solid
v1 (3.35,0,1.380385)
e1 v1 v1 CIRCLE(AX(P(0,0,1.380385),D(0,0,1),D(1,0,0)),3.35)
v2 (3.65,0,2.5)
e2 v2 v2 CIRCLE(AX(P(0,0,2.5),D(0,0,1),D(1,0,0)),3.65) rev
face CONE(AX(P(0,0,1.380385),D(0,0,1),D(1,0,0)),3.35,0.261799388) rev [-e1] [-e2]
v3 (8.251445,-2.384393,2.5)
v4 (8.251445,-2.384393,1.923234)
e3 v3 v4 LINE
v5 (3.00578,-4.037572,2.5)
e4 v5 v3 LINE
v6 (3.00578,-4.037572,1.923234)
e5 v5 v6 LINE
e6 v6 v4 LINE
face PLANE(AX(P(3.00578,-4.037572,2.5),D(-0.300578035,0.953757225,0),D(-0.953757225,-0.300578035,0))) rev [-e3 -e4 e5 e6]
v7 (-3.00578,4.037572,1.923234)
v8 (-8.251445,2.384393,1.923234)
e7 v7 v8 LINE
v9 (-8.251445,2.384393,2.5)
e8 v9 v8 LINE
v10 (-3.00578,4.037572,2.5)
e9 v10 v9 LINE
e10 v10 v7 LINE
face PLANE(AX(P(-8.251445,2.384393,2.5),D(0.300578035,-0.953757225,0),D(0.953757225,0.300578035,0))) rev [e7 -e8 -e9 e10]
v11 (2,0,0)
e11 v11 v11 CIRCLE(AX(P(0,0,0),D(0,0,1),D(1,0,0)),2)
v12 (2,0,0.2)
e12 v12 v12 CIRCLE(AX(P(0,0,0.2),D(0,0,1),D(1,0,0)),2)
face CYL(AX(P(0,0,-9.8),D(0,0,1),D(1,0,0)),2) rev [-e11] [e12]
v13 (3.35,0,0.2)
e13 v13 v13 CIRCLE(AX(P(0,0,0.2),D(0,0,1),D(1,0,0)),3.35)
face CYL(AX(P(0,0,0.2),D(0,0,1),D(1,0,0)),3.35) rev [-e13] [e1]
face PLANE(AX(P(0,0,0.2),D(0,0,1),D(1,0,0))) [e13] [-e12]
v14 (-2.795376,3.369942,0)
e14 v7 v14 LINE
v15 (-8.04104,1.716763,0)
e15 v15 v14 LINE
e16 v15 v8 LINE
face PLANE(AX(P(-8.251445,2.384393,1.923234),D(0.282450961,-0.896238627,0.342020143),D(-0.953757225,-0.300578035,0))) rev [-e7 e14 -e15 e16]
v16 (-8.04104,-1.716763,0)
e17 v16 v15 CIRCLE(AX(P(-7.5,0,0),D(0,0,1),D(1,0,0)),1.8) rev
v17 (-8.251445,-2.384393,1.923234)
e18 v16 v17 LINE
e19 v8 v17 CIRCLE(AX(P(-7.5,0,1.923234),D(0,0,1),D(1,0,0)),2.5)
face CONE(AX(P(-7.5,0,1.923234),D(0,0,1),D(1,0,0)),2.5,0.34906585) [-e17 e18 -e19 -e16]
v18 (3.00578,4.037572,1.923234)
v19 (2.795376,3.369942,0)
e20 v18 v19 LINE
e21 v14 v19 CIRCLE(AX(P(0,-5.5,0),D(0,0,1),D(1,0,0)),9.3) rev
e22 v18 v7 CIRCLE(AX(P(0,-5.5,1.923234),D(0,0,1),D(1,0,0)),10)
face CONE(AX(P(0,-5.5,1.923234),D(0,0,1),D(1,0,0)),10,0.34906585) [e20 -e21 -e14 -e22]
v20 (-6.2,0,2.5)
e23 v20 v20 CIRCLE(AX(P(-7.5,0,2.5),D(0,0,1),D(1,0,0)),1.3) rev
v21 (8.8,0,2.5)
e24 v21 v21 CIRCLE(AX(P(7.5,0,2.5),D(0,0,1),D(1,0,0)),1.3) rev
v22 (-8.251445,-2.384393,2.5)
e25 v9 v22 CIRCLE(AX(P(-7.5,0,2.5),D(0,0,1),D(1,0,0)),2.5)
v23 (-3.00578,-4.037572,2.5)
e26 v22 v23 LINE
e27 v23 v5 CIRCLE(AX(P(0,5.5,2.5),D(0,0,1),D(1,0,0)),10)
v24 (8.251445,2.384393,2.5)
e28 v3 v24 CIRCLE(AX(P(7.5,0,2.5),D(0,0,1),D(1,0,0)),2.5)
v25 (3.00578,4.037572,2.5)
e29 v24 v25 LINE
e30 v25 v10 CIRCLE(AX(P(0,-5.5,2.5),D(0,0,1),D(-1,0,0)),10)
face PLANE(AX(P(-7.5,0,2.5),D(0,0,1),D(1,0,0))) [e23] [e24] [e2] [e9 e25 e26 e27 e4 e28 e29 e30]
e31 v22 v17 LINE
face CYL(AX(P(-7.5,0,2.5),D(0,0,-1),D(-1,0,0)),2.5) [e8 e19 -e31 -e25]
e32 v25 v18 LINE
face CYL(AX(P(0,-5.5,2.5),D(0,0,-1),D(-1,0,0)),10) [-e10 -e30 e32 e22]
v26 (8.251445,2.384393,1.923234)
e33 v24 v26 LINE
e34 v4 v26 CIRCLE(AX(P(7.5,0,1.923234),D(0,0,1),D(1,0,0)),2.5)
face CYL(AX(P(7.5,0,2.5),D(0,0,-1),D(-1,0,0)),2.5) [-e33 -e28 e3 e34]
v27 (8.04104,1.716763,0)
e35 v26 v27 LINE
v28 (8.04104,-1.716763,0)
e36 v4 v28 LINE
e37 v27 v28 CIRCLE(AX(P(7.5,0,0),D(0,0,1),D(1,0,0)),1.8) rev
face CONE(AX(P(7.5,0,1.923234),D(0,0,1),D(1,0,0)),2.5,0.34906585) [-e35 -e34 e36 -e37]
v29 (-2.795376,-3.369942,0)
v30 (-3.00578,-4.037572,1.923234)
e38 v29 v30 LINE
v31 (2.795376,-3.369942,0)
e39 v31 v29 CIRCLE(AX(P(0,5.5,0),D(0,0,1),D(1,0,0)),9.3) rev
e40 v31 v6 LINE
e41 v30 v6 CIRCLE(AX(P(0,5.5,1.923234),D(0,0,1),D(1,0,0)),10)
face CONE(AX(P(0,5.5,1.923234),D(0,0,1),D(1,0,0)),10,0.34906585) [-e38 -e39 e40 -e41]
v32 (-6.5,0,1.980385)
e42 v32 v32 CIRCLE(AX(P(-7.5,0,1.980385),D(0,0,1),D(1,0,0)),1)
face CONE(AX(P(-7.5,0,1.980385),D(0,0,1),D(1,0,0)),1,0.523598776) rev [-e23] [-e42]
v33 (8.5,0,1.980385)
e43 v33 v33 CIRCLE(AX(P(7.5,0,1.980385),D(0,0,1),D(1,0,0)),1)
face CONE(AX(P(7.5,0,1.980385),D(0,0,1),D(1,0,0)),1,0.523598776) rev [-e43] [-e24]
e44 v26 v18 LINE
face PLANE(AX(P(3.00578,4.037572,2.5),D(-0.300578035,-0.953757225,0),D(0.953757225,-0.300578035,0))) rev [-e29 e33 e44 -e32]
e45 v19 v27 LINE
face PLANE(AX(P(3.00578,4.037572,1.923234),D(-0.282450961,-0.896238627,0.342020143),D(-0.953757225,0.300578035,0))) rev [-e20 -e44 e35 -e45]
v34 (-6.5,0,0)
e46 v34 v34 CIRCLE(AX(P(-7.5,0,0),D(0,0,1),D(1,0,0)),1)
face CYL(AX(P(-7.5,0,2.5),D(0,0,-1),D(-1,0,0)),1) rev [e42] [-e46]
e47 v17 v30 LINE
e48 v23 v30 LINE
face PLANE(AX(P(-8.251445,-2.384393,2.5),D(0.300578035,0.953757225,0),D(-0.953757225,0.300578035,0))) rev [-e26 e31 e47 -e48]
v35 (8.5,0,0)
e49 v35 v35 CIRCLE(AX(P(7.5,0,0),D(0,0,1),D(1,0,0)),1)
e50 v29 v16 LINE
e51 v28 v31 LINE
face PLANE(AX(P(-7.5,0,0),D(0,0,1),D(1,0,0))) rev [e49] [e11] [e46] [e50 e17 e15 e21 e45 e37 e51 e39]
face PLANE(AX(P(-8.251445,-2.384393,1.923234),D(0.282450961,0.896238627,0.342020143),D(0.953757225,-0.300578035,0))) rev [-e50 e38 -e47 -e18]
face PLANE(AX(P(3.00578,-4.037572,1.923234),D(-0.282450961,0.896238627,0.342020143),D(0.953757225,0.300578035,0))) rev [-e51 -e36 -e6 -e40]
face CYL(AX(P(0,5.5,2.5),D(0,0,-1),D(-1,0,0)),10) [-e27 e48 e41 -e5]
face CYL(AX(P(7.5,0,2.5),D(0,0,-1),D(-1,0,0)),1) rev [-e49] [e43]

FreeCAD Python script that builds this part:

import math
import FreeCAD as App
import Part
import Sketcher
from FreeCAD import Vector


def edges_at(feature, points):
    """Names of the edges that pass closest to the given points."""
    edges = feature.Shape.Edges
    near = lambda p: min(range(len(edges)), key=lambda i: edges[i].distToShape(Part.Vertex(*p))[0])
    return sorted({f"Edge{near(p) + 1}" for p in points})

doc = App.newDocument("Part")
body = doc.addObject("PartDesign::Body", "Body")

# Sketch on XY plane
sketch1 = body.newObject("Sketcher::SketchObject", "Sketch")
sketch1.AttachmentSupport = (doc.getObject("XY_Plane"), [""])
sketch1.MapMode = "FlatFace"
sketch1.addGeometry([
    Part.LineSegment(Vector(-3, 4, 0), Vector(-8.3, 2.4, 0)),  # 0
    Part.ArcOfCircle(Part.Circle(Vector(-7.5, 0, 0), Vector(0, 0, 1), 2.5), math.radians(107), math.radians(253)),  # 1
    Part.LineSegment(Vector(-8.3, -2.4, 0), Vector(-3, -4, 0)),  # 2
    Part.ArcOfCircle(Part.Circle(Vector(0, 5.5, 0), Vector(0, 0, 1), 10), math.radians(-107), math.radians(-73)),  # 3
    Part.LineSegment(Vector(3, -4, 0), Vector(8.3, -2.4, 0)),  # 4
    Part.ArcOfCircle(Part.Circle(Vector(7.5, 0, 0), Vector(0, 0, 1), 2.5), math.radians(-73), math.radians(73)),  # 5
    Part.LineSegment(Vector(8.3, 2.4, 0), Vector(3, 4, 0)),  # 6
    Part.ArcOfCircle(Part.Circle(Vector(0, -5.5, 0), Vector(0, 0, 1), 10), math.radians(73), math.radians(107)),  # 7
    Part.Circle(Vector(7.5, 0, 0), Vector(0, 0, 1), 1),  # 8
    Part.Circle(Vector(-7.5, 0, 0), Vector(0, 0, 1), 1),  # 9
], False)
sketch1.addConstraint([
    Sketcher.Constraint("Tangent", 0, 2, 1, 1),
    Sketcher.Constraint("Tangent", 1, 2, 2, 1),
    Sketcher.Constraint("Tangent", 2, 2, 3, 1),
    Sketcher.Constraint("Tangent", 3, 2, 4, 1),
    Sketcher.Constraint("Tangent", 4, 2, 5, 1),
    Sketcher.Constraint("Tangent", 5, 2, 6, 1),
    Sketcher.Constraint("Tangent", 6, 2, 7, 1),
    Sketcher.Constraint("Tangent", 7, 2, 0, 1),
    Sketcher.Constraint("Coincident", 8, 3, 5, 3),
    Sketcher.Constraint("Coincident", 9, 3, 1, 3),
    Sketcher.Constraint("Equal", 1, 5),
    Sketcher.Constraint("Equal", 3, 7),
    Sketcher.Constraint("Equal", 8, 9),
    Sketcher.Constraint("Symmetric", 1, 3, 5, 3, -1, 1),
    Sketcher.Constraint("Symmetric", 3, 3, 7, 3, -1, 1),
    Sketcher.Constraint("Symmetric", 2, 2, 3, 2, -2),
    Sketcher.Constraint("Diameter", 8, 2.0),
    Sketcher.Constraint("Radius", 3, 10.0),
    Sketcher.Constraint("Radius", 1, 2.5),
    Sketcher.Constraint("DistanceX", 1, 3, 5, 3, 15.0),
    Sketcher.Constraint("DistanceY", 7, 3, 3, 3, 11.0),
])
pad1 = body.newObject("PartDesign::Pad", "Pad")
pad1.Profile = sketch1
pad1.Length = 2.5

# Sketch on XY plane
sketch2 = body.newObject("Sketcher::SketchObject", "Sketch001")
sketch2.AttachmentSupport = (doc.getObject("XY_Plane"), [""])
sketch2.MapMode = "FlatFace"
sketch2.AttachmentOffset = App.Placement(Vector(0, 0, 2.5), App.Rotation())
sketch2.addGeometry(Part.Circle(Vector(0, 0, 0), Vector(0, 0, 1), 3.4), False)
sketch2.addConstraint([
    Sketcher.Constraint("Coincident", 0, 3, -1, 1),
    Sketcher.Constraint("Diameter", 0, 6.7),
])
pocket1 = body.newObject("PartDesign::Pocket", "Pocket")
pocket1.Profile = sketch2
pocket1.Length = 2.3
doc.recompute()

chamfer = body.newObject("PartDesign::Chamfer", "Chamfer")
chamfer.Base = (pocket1, edges_at(pocket1, [
    (-5.629, -3.211, 0),
    (-10, 0, 0),
    (-5.629, 3.211, 0),
    (0, 4.5, 0),
    (5.629, 3.211, 0),
    (10, 0, 0),
    (5.629, -3.211, 0),
    (0, -4.5, 0),
]))
chamfer.ChamferType = "Two distances"
chamfer.Size = 0.7
chamfer.Size2 = 1.923234
doc.recompute()

chamfer2 = body.newObject("PartDesign::Chamfer", "Chamfer001")
chamfer2.Base = (chamfer, edges_at(chamfer, [(-3.35, 0, 2.5)]))
chamfer2.ChamferType = "Two distances"
chamfer2.Size = 0.3
chamfer2.Size2 = 1.119615
doc.recompute()

chamfer3 = body.newObject("PartDesign::Chamfer", "Chamfer002")
chamfer3.Base = (chamfer2, edges_at(chamfer2, [(6.5, 0, 2.5), (-8.5, 0, 2.5)]))
chamfer3.ChamferType = "Two distances"
chamfer3.Size = 0.3
chamfer3.Size2 = 0.519615

# Sketch on XY plane
sketch3 = body.newObject("Sketcher::SketchObject", "Sketch002")
sketch3.AttachmentSupport = (doc.getObject("XY_Plane"), [""])
sketch3.MapMode = "FlatFace"
sketch3.AttachmentOffset = App.Placement(Vector(0, 0, 0.2), App.Rotation())
sketch3.addGeometry(Part.Circle(Vector(0, 0, 0), Vector(0, 0, 1), 2), False)
sketch3.addConstraint([
    Sketcher.Constraint("Coincident", 0, 3, -1, 1),
    Sketcher.Constraint("Diameter", 0, 4.0),
])
pocket2 = body.newObject("PartDesign::Pocket", "Pocket001")
pocket2.Profile = sketch3
pocket2.Length = 10

doc.recompute()
